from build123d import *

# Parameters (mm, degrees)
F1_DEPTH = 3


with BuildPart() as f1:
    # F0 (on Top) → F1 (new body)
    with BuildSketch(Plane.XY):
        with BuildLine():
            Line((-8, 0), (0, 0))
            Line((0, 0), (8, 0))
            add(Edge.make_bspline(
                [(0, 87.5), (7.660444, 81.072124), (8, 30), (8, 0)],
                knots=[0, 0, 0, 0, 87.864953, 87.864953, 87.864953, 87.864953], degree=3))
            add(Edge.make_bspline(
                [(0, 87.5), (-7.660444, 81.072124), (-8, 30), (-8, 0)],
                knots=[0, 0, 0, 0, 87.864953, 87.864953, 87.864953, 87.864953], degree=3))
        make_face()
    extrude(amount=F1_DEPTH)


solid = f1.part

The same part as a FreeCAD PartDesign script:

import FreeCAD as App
import Part
import Sketcher

V = App.Vector

doc = App.newDocument("Part")
params = doc.addObject("Spreadsheet::Sheet", "Params")
for row, (alias, value) in enumerate([
    ("pad1_length", "3 mm"),
], start=1):
    params.set(f"A{row}", alias)
    params.set(f"B{row}", "=" + value)
    params.setAlias(f"B{row}", alias)

body = doc.addObject("PartDesign::Body", "Body")

# Sketch on XY plane
sketch1 = body.newObject("Sketcher::SketchObject", "Sketch")
sketch1.AttachmentSupport = (doc.getObject("XY_Plane"), [""])
sketch1.MapMode = "FlatFace"
sketch1.addGeometry(Part.LineSegment(V(-8, 0, 0), V(8, 0, 0)), False)
sketch1.addGeometry(Part.BSplineCurve([V(0, 87.5, 0), V(7.660444, 81.072124, 0), V(8, 30, 0), V(8, 0, 0)], [4, 4], [0, 87.864953], False, 3, [1, 1, 1, 1], False), False)
sketch1.addGeometry(Part.BSplineCurve([V(0, 87.5, 0), V(-7.660444, 81.072124, 0), V(-8, 30, 0), V(-8, 0, 0)], [4, 4], [0, 87.864953], False, 3, [1, 1, 1, 1], False), False)
sketch1.addConstraint(Sketcher.Constraint("Block", 1))
sketch1.addConstraint(Sketcher.Constraint("Block", 2))
sketch1.addConstraint(Sketcher.Constraint("Coincident", 0, 2, 1, 2))
sketch1.addConstraint(Sketcher.Constraint("Coincident", 2, 2, 0, 1))
pad1 = body.newObject("PartDesign::Pad", "Pad")
pad1.Profile = sketch1
pad1.setExpression("Length", "Params.pad1_length")

doc.recompute()
